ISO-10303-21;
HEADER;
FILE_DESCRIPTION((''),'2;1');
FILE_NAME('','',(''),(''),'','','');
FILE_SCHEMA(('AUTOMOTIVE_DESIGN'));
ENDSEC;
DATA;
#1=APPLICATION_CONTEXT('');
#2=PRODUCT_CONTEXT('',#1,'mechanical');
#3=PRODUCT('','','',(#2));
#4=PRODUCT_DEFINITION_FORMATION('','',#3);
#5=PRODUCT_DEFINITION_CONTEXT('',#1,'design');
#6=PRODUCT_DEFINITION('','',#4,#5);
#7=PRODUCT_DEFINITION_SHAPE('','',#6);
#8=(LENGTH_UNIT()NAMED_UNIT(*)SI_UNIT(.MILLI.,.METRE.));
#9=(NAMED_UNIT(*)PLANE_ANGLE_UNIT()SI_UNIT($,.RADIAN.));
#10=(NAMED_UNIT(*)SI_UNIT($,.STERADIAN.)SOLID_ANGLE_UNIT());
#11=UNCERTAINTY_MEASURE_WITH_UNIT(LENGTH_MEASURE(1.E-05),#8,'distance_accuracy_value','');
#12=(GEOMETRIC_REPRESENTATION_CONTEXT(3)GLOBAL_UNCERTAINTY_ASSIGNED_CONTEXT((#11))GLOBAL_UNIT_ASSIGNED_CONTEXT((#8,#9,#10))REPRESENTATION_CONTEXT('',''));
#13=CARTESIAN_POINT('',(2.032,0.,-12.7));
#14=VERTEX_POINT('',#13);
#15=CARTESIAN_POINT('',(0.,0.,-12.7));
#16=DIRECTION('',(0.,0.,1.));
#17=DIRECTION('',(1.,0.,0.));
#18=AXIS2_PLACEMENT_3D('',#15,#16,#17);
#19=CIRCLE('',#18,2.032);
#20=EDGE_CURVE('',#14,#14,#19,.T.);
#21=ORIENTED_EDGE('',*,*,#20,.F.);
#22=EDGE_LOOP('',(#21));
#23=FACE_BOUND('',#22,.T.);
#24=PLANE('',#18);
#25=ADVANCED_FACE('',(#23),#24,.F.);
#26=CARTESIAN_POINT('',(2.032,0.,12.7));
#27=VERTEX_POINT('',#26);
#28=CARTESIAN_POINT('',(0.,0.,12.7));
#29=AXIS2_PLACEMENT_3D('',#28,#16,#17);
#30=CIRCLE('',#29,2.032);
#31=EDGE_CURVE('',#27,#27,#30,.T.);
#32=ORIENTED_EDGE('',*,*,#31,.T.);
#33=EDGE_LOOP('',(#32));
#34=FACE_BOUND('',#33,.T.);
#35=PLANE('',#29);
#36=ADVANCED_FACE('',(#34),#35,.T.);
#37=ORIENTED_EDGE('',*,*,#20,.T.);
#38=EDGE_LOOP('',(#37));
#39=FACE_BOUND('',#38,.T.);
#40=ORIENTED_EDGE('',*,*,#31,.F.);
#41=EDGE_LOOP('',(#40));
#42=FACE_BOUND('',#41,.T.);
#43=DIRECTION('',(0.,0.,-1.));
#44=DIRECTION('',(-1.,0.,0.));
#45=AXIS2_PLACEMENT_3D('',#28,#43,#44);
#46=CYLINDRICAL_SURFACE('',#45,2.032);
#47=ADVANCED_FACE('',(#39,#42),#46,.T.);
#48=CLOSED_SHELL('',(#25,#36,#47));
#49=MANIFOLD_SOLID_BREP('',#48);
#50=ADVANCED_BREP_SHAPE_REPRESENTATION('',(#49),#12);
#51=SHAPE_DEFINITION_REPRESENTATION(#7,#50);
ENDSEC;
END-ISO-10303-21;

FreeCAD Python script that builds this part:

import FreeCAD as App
import Part
import Sketcher

V = App.Vector
Q = App.Units.Quantity

doc = App.newDocument("Part")
body = doc.addObject("PartDesign::Body", "Body")

# Sketch on XY plane
sketch1 = body.newObject("Sketcher::SketchObject", "Sketch")
sketch1.AttachmentSupport = (doc.getObject("XY_Plane"), [""])
sketch1.MapMode = "FlatFace"
sketch1.addGeometry(Part.Circle(V(0, 0, 0), V(0, 0, 1), 2), False)
sketch1.addConstraint([
    Sketcher.Constraint("Coincident", 0, 3, -1, 1),
    Sketcher.Constraint("Diameter", 0, Q("0.16 in")),
])
pad1 = body.newObject("PartDesign::Pad", "Pad")
pad1.Profile = sketch1
pad1.Length = Q("1 in")
pad1.Midplane = True

doc.recompute()
